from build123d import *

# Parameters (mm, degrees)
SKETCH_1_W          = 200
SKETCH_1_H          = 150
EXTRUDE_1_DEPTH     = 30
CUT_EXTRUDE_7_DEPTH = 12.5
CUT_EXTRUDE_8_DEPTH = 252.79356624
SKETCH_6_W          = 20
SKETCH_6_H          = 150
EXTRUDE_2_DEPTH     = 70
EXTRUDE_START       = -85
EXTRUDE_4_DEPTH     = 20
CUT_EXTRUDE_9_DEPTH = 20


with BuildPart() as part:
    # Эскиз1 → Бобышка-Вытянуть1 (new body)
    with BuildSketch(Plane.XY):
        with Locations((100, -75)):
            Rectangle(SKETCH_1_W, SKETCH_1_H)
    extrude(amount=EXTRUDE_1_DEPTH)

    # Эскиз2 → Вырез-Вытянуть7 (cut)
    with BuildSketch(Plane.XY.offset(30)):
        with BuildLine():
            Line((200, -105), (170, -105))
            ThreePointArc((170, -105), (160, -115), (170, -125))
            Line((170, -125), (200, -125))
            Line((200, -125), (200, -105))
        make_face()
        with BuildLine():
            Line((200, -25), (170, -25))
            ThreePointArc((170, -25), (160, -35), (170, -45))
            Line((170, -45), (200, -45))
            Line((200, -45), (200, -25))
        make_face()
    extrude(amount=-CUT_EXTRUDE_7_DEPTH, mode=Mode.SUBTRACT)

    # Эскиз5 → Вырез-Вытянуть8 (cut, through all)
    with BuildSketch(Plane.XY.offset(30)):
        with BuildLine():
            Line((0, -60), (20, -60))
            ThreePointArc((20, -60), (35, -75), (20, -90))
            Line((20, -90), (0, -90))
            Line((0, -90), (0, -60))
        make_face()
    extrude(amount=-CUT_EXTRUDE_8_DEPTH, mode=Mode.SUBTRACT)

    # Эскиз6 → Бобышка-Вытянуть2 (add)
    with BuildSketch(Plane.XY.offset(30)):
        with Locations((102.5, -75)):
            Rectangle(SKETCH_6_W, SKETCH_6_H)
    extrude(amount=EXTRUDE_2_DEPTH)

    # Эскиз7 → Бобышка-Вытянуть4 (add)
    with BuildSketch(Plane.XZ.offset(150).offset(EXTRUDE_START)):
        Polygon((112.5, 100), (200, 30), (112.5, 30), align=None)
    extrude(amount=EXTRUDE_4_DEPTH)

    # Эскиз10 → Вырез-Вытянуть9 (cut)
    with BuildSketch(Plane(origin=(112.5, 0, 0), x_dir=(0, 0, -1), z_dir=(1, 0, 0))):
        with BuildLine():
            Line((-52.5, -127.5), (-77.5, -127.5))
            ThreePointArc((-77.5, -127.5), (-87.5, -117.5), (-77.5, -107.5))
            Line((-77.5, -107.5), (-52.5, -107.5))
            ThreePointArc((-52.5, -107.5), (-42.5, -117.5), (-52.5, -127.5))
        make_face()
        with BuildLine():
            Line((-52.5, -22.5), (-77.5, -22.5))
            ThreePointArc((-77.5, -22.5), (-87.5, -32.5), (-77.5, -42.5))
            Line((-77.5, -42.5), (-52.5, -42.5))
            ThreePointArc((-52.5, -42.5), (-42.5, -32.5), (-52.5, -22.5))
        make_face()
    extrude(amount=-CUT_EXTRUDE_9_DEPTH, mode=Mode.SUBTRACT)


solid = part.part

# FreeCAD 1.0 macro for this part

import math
import FreeCAD as App
import Part
import Sketcher


def add_polygon(sketch, points):
    """Adds a closed chain of lines whose ends are joined by coincident constraints."""
    first, n = sketch.GeometryCount, len(points)
    for a, b in zip(points, points[1:] + points[:1]):
        sketch.addGeometry(Part.LineSegment(App.Vector(*a, 0), App.Vector(*b, 0)), False)
    for i in range(n):
        sketch.addConstraint(Sketcher.Constraint("Coincident", first + i, 2, first + (i + 1) % n, 1))

doc = App.newDocument("Part")
body = doc.addObject("PartDesign::Body", "Body")

sketch1 = body.newObject("Sketcher::SketchObject", "Sketch")
sketch1.AttachmentSupport = (doc.getObject("XY_Plane"), [""])
sketch1.MapMode = "FlatFace"
add_polygon(sketch1, [(0, 0), (0, -150), (200, -150), (200, 0)])
sketch1.addConstraint(Sketcher.Constraint("Vertical", 0))
sketch1.addConstraint(Sketcher.Constraint("Horizontal", 1))
sketch1.addConstraint(Sketcher.Constraint("Vertical", 2))
sketch1.addConstraint(Sketcher.Constraint("Horizontal", 3))
sketch1.addConstraint(Sketcher.Constraint("Coincident", 3, 2, -1, 1))
sketch1.addConstraint(Sketcher.Constraint("DistanceX", 1, 1, 1, 2, 200.0))
sketch1.addConstraint(Sketcher.Constraint("DistanceY", 0, 2, 0, 1, 150.0))
pad1 = body.newObject("PartDesign::Pad", "Pad")
pad1.Profile = sketch1
pad1.Length = 30

sketch2 = body.newObject("Sketcher::SketchObject", "Sketch001")
sketch2.AttachmentSupport = (doc.getObject("XY_Plane"), [""])
sketch2.MapMode = "FlatFace"
sketch2.AttachmentOffset = App.Placement(App.Vector(0, 0, 30), App.Rotation())
sketch2.addGeometry(Part.LineSegment(App.Vector(200, -105, 0), App.Vector(170, -105, 0)), False)
sketch2.addGeometry(Part.ArcOfCircle(Part.Circle(App.Vector(170, -115, 0), App.Vector(0, 0, 1), 10), math.radians(90), math.radians(270)), False)
sketch2.addGeometry(Part.LineSegment(App.Vector(170, -125, 0), App.Vector(200, -125, 0)), False)
sketch2.addGeometry(Part.LineSegment(App.Vector(200, -125, 0), App.Vector(200, -105, 0)), False)
sketch2.addGeometry(Part.LineSegment(App.Vector(200, -25, 0), App.Vector(170, -25, 0)), False)
sketch2.addGeometry(Part.ArcOfCircle(Part.Circle(App.Vector(170, -35, 0), App.Vector(0, 0, 1), 10), math.radians(90), math.radians(270)), False)
sketch2.addGeometry(Part.LineSegment(App.Vector(170, -45, 0), App.Vector(200, -45, 0)), False)
sketch2.addGeometry(Part.LineSegment(App.Vector(200, -45, 0), App.Vector(200, -25, 0)), False)
sketch2.addConstraint(Sketcher.Constraint("Tangent", 0, 2, 1, 1))
sketch2.addConstraint(Sketcher.Constraint("Tangent", 1, 2, 2, 1))
sketch2.addConstraint(Sketcher.Constraint("Coincident", 2, 2, 3, 1))
sketch2.addConstraint(Sketcher.Constraint("Coincident", 3, 2, 0, 1))
sketch2.addConstraint(Sketcher.Constraint("Tangent", 4, 2, 5, 1))
sketch2.addConstraint(Sketcher.Constraint("Tangent", 5, 2, 6, 1))
sketch2.addConstraint(Sketcher.Constraint("Coincident", 6, 2, 7, 1))
sketch2.addConstraint(Sketcher.Constraint("Coincident", 7, 2, 4, 1))
sketch2.addConstraint(Sketcher.Constraint("Horizontal", 0))
sketch2.addConstraint(Sketcher.Constraint("Horizontal", 2))
sketch2.addConstraint(Sketcher.Constraint("Vertical", 3))
sketch2.addConstraint(Sketcher.Constraint("Horizontal", 4))
sketch2.addConstraint(Sketcher.Constraint("Horizontal", 6))
sketch2.addConstraint(Sketcher.Constraint("Vertical", 7))
sketch2.addConstraint(Sketcher.Constraint("Equal", 1, 5))
sketch2.addConstraint(Sketcher.Constraint("Vertical", 1, 3, 5, 3))
sketch2.addConstraint(Sketcher.Constraint("Vertical", 3, 2, 6, 2))
sketch2.addConstraint(Sketcher.Constraint("Radius", 1, 10.0))
sketch2.addConstraint(Sketcher.Constraint("DistanceX", 0, 2, 0, 1, 30.0))
sketch2.addConstraint(Sketcher.Constraint("DistanceX", -1, 1, 1, 3, 170.0))
sketch2.addConstraint(Sketcher.Constraint("DistanceY", 1, 3, -1, 1, 115.0))
sketch2.addConstraint(Sketcher.Constraint("DistanceY", 5, 3, -1, 1, 35.0))
pocket1 = body.newObject("PartDesign::Pocket", "Pocket")
pocket1.Profile = sketch2
pocket1.Length = 12.5

sketch3 = body.newObject("Sketcher::SketchObject", "Sketch002")
sketch3.AttachmentSupport = (doc.getObject("XY_Plane"), [""])
sketch3.MapMode = "FlatFace"
sketch3.AttachmentOffset = App.Placement(App.Vector(0, 0, 30), App.Rotation())
sketch3.addGeometry(Part.LineSegment(App.Vector(20, -60, 0), App.Vector(0, -60, 0)), False)
sketch3.addGeometry(Part.LineSegment(App.Vector(0, -60, 0), App.Vector(0, -90, 0)), False)
sketch3.addGeometry(Part.LineSegment(App.Vector(0, -90, 0), App.Vector(20, -90, 0)), False)
sketch3.addGeometry(Part.ArcOfCircle(Part.Circle(App.Vector(20, -75, 0), App.Vector(0, 0, 1), 15), math.radians(-90), math.radians(90)), False)
sketch3.addConstraint(Sketcher.Constraint("Coincident", 0, 2, 1, 1))
sketch3.addConstraint(Sketcher.Constraint("Coincident", 1, 2, 2, 1))
sketch3.addConstraint(Sketcher.Constraint("Tangent", 2, 2, 3, 1))
sketch3.addConstraint(Sketcher.Constraint("Tangent", 3, 2, 0, 1))
sketch3.addConstraint(Sketcher.Constraint("Horizontal", 0))
sketch3.addConstraint(Sketcher.Constraint("Vertical", 1))
sketch3.addConstraint(Sketcher.Constraint("Horizontal", 2))
sketch3.addConstraint(Sketcher.Constraint("PointOnObject", 0, 2, -2))
sketch3.addConstraint(Sketcher.Constraint("Radius", 3, 15.0))
sketch3.addConstraint(Sketcher.Constraint("DistanceX", 0, 2, 0, 1, 20.0))
sketch3.addConstraint(Sketcher.Constraint("DistanceY", 3, 3, -1, 1, 75.0))
pocket2 = body.newObject("PartDesign::Pocket", "Pocket001")
pocket2.Profile = sketch3
pocket2.Type = "ThroughAll"

sketch4 = body.newObject("Sketcher::SketchObject", "Sketch003")
sketch4.AttachmentSupport = (doc.getObject("XY_Plane"), [""])
sketch4.MapMode = "FlatFace"
sketch4.AttachmentOffset = App.Placement(App.Vector(0, 0, 30), App.Rotation())
add_polygon(sketch4, [(92.5, 0), (92.5, -150), (112.5, -150), (112.5, 0)])
sketch4.addConstraint(Sketcher.Constraint("Vertical", 0))
sketch4.addConstraint(Sketcher.Constraint("Horizontal", 1))
sketch4.addConstraint(Sketcher.Constraint("Vertical", 2))
sketch4.addConstraint(Sketcher.Constraint("Horizontal", 3))
sketch4.addConstraint(Sketcher.Constraint("PointOnObject", 2, 2, -1))
sketch4.addConstraint(Sketcher.Constraint("DistanceX", 1, 1, 1, 2, 20.0))
sketch4.addConstraint(Sketcher.Constraint("DistanceY", 0, 2, 0, 1, 150.0))
sketch4.addConstraint(Sketcher.Constraint("DistanceX", -1, 1, 0, 2, 92.5))
pad2 = body.newObject("PartDesign::Pad", "Pad001")
pad2.Profile = sketch4
pad2.Length = 70

sketch5 = body.newObject("Sketcher::SketchObject", "Sketch004")
sketch5.AttachmentSupport = (doc.getObject("XZ_Plane"), [""])
sketch5.MapMode = "FlatFace"
sketch5.AttachmentOffset = App.Placement(App.Vector(0, 0, 65), App.Rotation())
add_polygon(sketch5, [(200, 30), (112.5, 100), (112.5, 30)])
sketch5.addConstraint(Sketcher.Constraint("Vertical", 1))
sketch5.addConstraint(Sketcher.Constraint("Horizontal", 2))
sketch5.addConstraint(Sketcher.Constraint("DistanceY", 1, 2, 1, 1, 70.0))
sketch5.addConstraint(Sketcher.Constraint("DistanceX", 2, 1, 2, 2, 87.5))
sketch5.addConstraint(Sketcher.Constraint("DistanceY", -1, 1, 0, 2, 100.0))
sketch5.addConstraint(Sketcher.Constraint("DistanceX", -1, 1, 2, 2, 200.0))
pad3 = body.newObject("PartDesign::Pad", "Pad002")
pad3.Profile = sketch5
pad3.Length = 20

sketch6 = body.newObject("Sketcher::SketchObject", "Sketch005")
sketch6.AttachmentSupport = (doc.getObject("YZ_Plane"), [""])
sketch6.MapMode = "FlatFace"
sketch6.AttachmentOffset = App.Placement(App.Vector(0, 0, 112.5), App.Rotation())
sketch6.addGeometry(Part.LineSegment(App.Vector(-127.5, 77.5, 0), App.Vector(-127.5, 52.5, 0)), False)
sketch6.addGeometry(Part.ArcOfCircle(Part.Circle(App.Vector(-117.5, 52.5, 0), App.Vector(0, 0, 1), 10), math.radians(180), math.radians(360)), False)
sketch6.addGeometry(Part.LineSegment(App.Vector(-107.5, 52.5, 0), App.Vector(-107.5, 77.5, 0)), False)
sketch6.addGeometry(Part.ArcOfCircle(Part.Circle(App.Vector(-117.5, 77.5, 0), App.Vector(0, 0, 1), 10), math.radians(0), math.radians(180)), False)
sketch6.addGeometry(Part.LineSegment(App.Vector(-22.5, 52.5, 0), App.Vector(-22.5, 77.5, 0)), False)
sketch6.addGeometry(Part.ArcOfCircle(Part.Circle(App.Vector(-32.5, 77.5, 0), App.Vector(0, 0, 1), 10), math.radians(0), math.radians(180)), False)
sketch6.addGeometry(Part.LineSegment(App.Vector(-42.5, 77.5, 0), App.Vector(-42.5, 52.5, 0)), False)
sketch6.addGeometry(Part.ArcOfCircle(Part.Circle(App.Vector(-32.5, 52.5, 0), App.Vector(0, 0, 1), 10), math.radians(180), math.radians(360)), False)
sketch6.addConstraint(Sketcher.Constraint("Tangent", 0, 2, 1, 1))
sketch6.addConstraint(Sketcher.Constraint("Tangent", 1, 2, 2, 1))
sketch6.addConstraint(Sketcher.Constraint("Tangent", 2, 2, 3, 1))
sketch6.addConstraint(Sketcher.Constraint("Tangent", 3, 2, 0, 1))
sketch6.addConstraint(Sketcher.Constraint("Tangent", 4, 2, 5, 1))
sketch6.addConstraint(Sketcher.Constraint("Tangent", 5, 2, 6, 1))
sketch6.addConstraint(Sketcher.Constraint("Tangent", 6, 2, 7, 1))
sketch6.addConstraint(Sketcher.Constraint("Tangent", 7, 2, 4, 1))
sketch6.addConstraint(Sketcher.Constraint("Vertical", 0))
sketch6.addConstraint(Sketcher.Constraint("Vertical", 2))
sketch6.addConstraint(Sketcher.Constraint("Vertical", 4))
sketch6.addConstraint(Sketcher.Constraint("Vertical", 6))
sketch6.addConstraint(Sketcher.Constraint("Equal", 3, 5))
sketch6.addConstraint(Sketcher.Constraint("Horizontal", 3, 3, 5, 3))
sketch6.addConstraint(Sketcher.Constraint("Horizontal", 1, 3, 7, 3))
sketch6.addConstraint(Sketcher.Constraint("Radius", 1, 10.0))
sketch6.addConstraint(Sketcher.Constraint("DistanceY", 0, 2, 0, 1, 25.0))
sketch6.addConstraint(Sketcher.Constraint("DistanceX", 3, 3, 5, 3, 85.0))
sketch6.addConstraint(Sketcher.Constraint("DistanceX", 1, 3, -1, 1, 117.5))
sketch6.addConstraint(Sketcher.Constraint("DistanceY", -1, 1, 1, 3, 52.5))
pocket3 = body.newObject("PartDesign::Pocket", "Pocket002")
pocket3.Profile = sketch6
pocket3.Length = 20

doc.recompute()
